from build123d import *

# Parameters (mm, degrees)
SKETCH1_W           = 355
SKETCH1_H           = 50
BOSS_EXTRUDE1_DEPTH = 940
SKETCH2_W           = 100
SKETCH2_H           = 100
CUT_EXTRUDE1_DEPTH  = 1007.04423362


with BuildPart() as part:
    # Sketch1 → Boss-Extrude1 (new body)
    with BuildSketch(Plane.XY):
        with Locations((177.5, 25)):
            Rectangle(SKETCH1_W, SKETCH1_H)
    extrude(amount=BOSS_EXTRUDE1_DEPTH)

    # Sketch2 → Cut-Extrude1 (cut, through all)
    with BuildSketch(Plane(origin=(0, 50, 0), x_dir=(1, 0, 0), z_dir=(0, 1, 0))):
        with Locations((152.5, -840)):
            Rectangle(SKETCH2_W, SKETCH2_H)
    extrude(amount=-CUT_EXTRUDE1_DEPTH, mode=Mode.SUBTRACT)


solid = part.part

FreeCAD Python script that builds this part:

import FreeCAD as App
import Part
import Sketcher

V = App.Vector
Q = App.Units.Quantity

doc = App.newDocument("Part")
body = doc.addObject("PartDesign::Body", "Body")

# Sketch on XY plane
sketch1 = body.newObject("Sketcher::SketchObject", "Sketch")
sketch1.AttachmentSupport = (doc.getObject("XY_Plane"), [""])
sketch1.MapMode = "FlatFace"
sketch1.addGeometry(Part.LineSegment(V(0, 50, 0), V(0, 0, 0)), False)
sketch1.addGeometry(Part.LineSegment(V(0, 0, 0), V(355, 0, 0)), False)
sketch1.addGeometry(Part.LineSegment(V(355, 0, 0), V(355, 50, 0)), False)
sketch1.addGeometry(Part.LineSegment(V(355, 50, 0), V(0, 50, 0)), False)
sketch1.addConstraint(Sketcher.Constraint("Coincident", 0, 2, 1, 1))
sketch1.addConstraint(Sketcher.Constraint("Coincident", 1, 2, 2, 1))
sketch1.addConstraint(Sketcher.Constraint("Coincident", 2, 2, 3, 1))
sketch1.addConstraint(Sketcher.Constraint("Coincident", 3, 2, 0, 1))
sketch1.addConstraint(Sketcher.Constraint("Vertical", 0))
sketch1.addConstraint(Sketcher.Constraint("Horizontal", 1))
sketch1.addConstraint(Sketcher.Constraint("Vertical", 2))
sketch1.addConstraint(Sketcher.Constraint("Horizontal", 3))
sketch1.addConstraint(Sketcher.Constraint("Coincident", 0, 2, -1, 1))
sketch1.addConstraint(Sketcher.Constraint("DistanceX", 1, 1, 1, 2, Q("355 mm")))
sketch1.addConstraint(Sketcher.Constraint("DistanceY", 0, 2, 0, 1, Q("50 mm")))
pad1 = body.newObject("PartDesign::Pad", "Pad")
pad1.Profile = sketch1
pad1.Length = 940

# Sketch on XZ plane
sketch2 = body.newObject("Sketcher::SketchObject", "Sketch001")
sketch2.AttachmentSupport = (doc.getObject("XZ_Plane"), [""])
sketch2.MapMode = "FlatFace"
sketch2.AttachmentOffset = App.Placement(V(0, 0, -50), App.Rotation())
sketch2.addGeometry(Part.LineSegment(V(102.5, 790, 0), V(102.5, 890, 0)), False)
sketch2.addGeometry(Part.LineSegment(V(102.5, 890, 0), V(202.5, 890, 0)), False)
sketch2.addGeometry(Part.LineSegment(V(202.5, 890, 0), V(202.5, 790, 0)), False)
sketch2.addGeometry(Part.LineSegment(V(202.5, 790, 0), V(102.5, 790, 0)), False)
sketch2.addConstraint(Sketcher.Constraint("Coincident", 0, 2, 1, 1))
sketch2.addConstraint(Sketcher.Constraint("Coincident", 1, 2, 2, 1))
sketch2.addConstraint(Sketcher.Constraint("Coincident", 2, 2, 3, 1))
sketch2.addConstraint(Sketcher.Constraint("Coincident", 3, 2, 0, 1))
sketch2.addConstraint(Sketcher.Constraint("Vertical", 0))
sketch2.addConstraint(Sketcher.Constraint("Horizontal", 1))
sketch2.addConstraint(Sketcher.Constraint("Vertical", 2))
sketch2.addConstraint(Sketcher.Constraint("Horizontal", 3))
sketch2.addConstraint(Sketcher.Constraint("Equal", 3, 0))
sketch2.addConstraint(Sketcher.Constraint("DistanceX", 1, 1, 1, 2, Q("100 mm")))
sketch2.addConstraint(Sketcher.Constraint("DistanceY", -1, 1, 0, 2, Q("890 mm")))
sketch2.addConstraint(Sketcher.Constraint("DistanceX", -1, 1, 0, 2, Q("102.5 mm")))
pocket1 = body.newObject("PartDesign::Pocket", "Pocket")
pocket1.Profile = sketch2
pocket1.Type = "ThroughAll"
pocket1.Reversed = True

doc.recompute()
